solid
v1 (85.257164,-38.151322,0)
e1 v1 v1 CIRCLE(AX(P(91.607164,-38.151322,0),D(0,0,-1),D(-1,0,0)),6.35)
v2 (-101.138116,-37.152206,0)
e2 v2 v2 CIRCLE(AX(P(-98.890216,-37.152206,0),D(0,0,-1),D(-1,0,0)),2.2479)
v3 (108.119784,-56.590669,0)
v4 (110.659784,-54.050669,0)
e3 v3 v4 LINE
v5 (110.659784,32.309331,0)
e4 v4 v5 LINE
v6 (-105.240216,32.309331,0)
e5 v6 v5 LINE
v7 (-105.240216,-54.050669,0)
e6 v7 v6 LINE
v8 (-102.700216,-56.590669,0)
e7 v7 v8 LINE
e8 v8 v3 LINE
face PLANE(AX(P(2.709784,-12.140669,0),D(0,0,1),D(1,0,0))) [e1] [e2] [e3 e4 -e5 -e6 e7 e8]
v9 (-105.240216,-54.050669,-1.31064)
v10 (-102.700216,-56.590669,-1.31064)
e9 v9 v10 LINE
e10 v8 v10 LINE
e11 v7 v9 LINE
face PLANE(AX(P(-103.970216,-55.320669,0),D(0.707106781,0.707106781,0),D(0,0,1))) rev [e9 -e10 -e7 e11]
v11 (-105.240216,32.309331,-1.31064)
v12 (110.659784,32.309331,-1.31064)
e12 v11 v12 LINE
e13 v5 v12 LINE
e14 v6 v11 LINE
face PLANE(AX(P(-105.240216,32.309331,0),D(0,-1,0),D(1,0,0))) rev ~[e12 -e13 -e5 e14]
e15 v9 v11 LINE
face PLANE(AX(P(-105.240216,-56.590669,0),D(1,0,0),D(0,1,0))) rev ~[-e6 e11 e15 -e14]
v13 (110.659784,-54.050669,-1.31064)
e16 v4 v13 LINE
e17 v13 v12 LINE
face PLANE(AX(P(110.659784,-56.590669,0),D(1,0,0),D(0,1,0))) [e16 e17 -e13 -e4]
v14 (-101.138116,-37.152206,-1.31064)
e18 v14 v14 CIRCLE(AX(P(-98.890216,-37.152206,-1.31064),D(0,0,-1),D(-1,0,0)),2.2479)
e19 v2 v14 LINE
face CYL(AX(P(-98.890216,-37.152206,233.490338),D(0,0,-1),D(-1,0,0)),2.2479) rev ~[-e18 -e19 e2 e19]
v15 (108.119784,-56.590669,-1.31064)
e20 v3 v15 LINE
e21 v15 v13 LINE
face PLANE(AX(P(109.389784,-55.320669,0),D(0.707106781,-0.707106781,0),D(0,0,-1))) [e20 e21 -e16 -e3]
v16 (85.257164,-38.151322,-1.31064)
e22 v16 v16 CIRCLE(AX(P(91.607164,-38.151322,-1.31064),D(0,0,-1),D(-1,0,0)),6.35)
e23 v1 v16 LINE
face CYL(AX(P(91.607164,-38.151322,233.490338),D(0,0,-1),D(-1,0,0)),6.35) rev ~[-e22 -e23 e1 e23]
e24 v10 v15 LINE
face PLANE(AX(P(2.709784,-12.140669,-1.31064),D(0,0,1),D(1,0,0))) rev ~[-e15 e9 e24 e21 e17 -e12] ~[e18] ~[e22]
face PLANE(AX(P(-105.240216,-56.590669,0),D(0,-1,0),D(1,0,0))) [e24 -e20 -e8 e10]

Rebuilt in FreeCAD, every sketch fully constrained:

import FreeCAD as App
import Part
import Sketcher
Q = App.Units.Quantity


def edges_at(feature, points):
    """Names of the edges that pass closest to the given points."""
    edges = feature.Shape.Edges
    near = lambda p: min(range(len(edges)), key=lambda i: edges[i].distToShape(Part.Vertex(*p))[0])
    return sorted({f"Edge{near(p) + 1}" for p in points})


def add_polygon(sketch, points):
    """Adds a closed chain of lines whose ends are joined by coincident constraints."""
    first, n = sketch.GeometryCount, len(points)
    for a, b in zip(points, points[1:] + points[:1]):
        sketch.addGeometry(Part.LineSegment(App.Vector(*a, 0), App.Vector(*b, 0)), False)
    for i in range(n):
        sketch.addConstraint(Sketcher.Constraint("Coincident", first + i, 2, first + (i + 1) % n, 1))

doc = App.newDocument("Part")
params = doc.addObject("Spreadsheet::Sheet", "Params")
for row, (alias, value) in enumerate([
    ("sketch1_width", "8.5 in"),
    ("sketch1_height", "3.5 in"),
    ("pad1_length", "0.0516 in"),
    ("chamfer_size", "0.1 in"),
    ("chamfer2_size", "0.1 in"),
    ("sketch2_diameter", "0.177 in"),
    ("hole_diameter", "0.177 in"),
    ("sketch3_diameter", "0.5 in"),
    ("hole2_diameter", "0.5 in"),
], start=1):
    params.set(f"A{row}", alias)
    params.set(f"B{row}", "=" + value)
    params.setAlias(f"B{row}", alias)

body = doc.addObject("PartDesign::Body", "Body")

sketch1 = body.newObject("Sketcher::SketchObject", "Sketch")
sketch1.AttachmentSupport = (doc.getObject("XY_Plane"), [""])
sketch1.MapMode = "FlatFace"
add_polygon(sketch1, [(-105, 32), (-105, -57), (111, -57), (111, 32)])
sketch1.addConstraint(Sketcher.Constraint("Vertical", 0))
sketch1.addConstraint(Sketcher.Constraint("Horizontal", 1))
sketch1.addConstraint(Sketcher.Constraint("Vertical", 2))
sketch1.addConstraint(Sketcher.Constraint("Horizontal", 3))
sketch1.addConstraint(Sketcher.Constraint("DistanceX", 1, 1, 1, 2, Q("8.5 in")))
sketch1.addConstraint(Sketcher.Constraint("DistanceY", 0, 2, 0, 1, Q("3.5 in")))
sketch1.addConstraint(Sketcher.Constraint("DistanceY", 0, 2, -1, 1, 56.590669))
sketch1.addConstraint(Sketcher.Constraint("DistanceX", 0, 2, -1, 1, 105.240216))
sketch1.setExpression("Constraints[8]", "Params.sketch1_width")
sketch1.setExpression("Constraints[9]", "Params.sketch1_height")
pad1 = body.newObject("PartDesign::Pad", "Pad")
pad1.Profile = sketch1
pad1.setExpression("Length", "Params.pad1_length")
pad1.Reversed = True
doc.recompute()

chamfer = body.newObject("PartDesign::Chamfer", "Chamfer")
chamfer.Base = (pad1, edges_at(pad1, [(-105.24, -56.591, -0.655)]))
chamfer.setExpression("Size", "Params.chamfer_size")
doc.recompute()

chamfer2 = body.newObject("PartDesign::Chamfer", "Chamfer001")
chamfer2.Base = (chamfer, edges_at(chamfer, [(110.66, -56.591, -0.655)]))
chamfer2.setExpression("Size", "Params.chamfer2_size")

sketch2 = body.newObject("Sketcher::SketchObject", "Sketch001")
sketch2.AttachmentSupport = (doc.getObject("XY_Plane"), [""])
sketch2.MapMode = "FlatFace"
sketch2.addGeometry(Part.Circle(App.Vector(-98.9, -37.2, 0), App.Vector(0, 0, 1), 2.2), False)
sketch2.addConstraint(Sketcher.Constraint("Diameter", 0, Q("0.177 in")))
sketch2.addConstraint(Sketcher.Constraint("DistanceX", 0, 3, -1, 1, 98.890216))
sketch2.addConstraint(Sketcher.Constraint("DistanceY", 0, 3, -1, 1, 37.152206))
sketch2.setExpression("Constraints[0]", "Params.sketch2_diameter")
doc.recompute()
hole = body.newObject("PartDesign::Hole", "Hole")
hole.Profile = sketch2
hole.ThreadType = "None"
hole.setExpression("Diameter", "Params.hole_diameter")
hole.DepthType = "ThroughAll"

sketch3 = body.newObject("Sketcher::SketchObject", "Sketch002")
sketch3.AttachmentSupport = (doc.getObject("XY_Plane"), [""])
sketch3.MapMode = "FlatFace"
sketch3.addGeometry(Part.Circle(App.Vector(92, -38, 0), App.Vector(0, 0, 1), 6), False)
sketch3.addConstraint(Sketcher.Constraint("Diameter", 0, Q("0.5 in")))
sketch3.addConstraint(Sketcher.Constraint("DistanceX", -1, 1, 0, 3, 91.607164))
sketch3.addConstraint(Sketcher.Constraint("DistanceY", 0, 3, -1, 1, 38.151322))
sketch3.setExpression("Constraints[0]", "Params.sketch3_diameter")
doc.recompute()
hole2 = body.newObject("PartDesign::Hole", "Hole001")
hole2.Profile = sketch3
hole2.ThreadType = "None"
hole2.setExpression("Diameter", "Params.hole2_diameter")
hole2.DepthType = "ThroughAll"

doc.recompute()
